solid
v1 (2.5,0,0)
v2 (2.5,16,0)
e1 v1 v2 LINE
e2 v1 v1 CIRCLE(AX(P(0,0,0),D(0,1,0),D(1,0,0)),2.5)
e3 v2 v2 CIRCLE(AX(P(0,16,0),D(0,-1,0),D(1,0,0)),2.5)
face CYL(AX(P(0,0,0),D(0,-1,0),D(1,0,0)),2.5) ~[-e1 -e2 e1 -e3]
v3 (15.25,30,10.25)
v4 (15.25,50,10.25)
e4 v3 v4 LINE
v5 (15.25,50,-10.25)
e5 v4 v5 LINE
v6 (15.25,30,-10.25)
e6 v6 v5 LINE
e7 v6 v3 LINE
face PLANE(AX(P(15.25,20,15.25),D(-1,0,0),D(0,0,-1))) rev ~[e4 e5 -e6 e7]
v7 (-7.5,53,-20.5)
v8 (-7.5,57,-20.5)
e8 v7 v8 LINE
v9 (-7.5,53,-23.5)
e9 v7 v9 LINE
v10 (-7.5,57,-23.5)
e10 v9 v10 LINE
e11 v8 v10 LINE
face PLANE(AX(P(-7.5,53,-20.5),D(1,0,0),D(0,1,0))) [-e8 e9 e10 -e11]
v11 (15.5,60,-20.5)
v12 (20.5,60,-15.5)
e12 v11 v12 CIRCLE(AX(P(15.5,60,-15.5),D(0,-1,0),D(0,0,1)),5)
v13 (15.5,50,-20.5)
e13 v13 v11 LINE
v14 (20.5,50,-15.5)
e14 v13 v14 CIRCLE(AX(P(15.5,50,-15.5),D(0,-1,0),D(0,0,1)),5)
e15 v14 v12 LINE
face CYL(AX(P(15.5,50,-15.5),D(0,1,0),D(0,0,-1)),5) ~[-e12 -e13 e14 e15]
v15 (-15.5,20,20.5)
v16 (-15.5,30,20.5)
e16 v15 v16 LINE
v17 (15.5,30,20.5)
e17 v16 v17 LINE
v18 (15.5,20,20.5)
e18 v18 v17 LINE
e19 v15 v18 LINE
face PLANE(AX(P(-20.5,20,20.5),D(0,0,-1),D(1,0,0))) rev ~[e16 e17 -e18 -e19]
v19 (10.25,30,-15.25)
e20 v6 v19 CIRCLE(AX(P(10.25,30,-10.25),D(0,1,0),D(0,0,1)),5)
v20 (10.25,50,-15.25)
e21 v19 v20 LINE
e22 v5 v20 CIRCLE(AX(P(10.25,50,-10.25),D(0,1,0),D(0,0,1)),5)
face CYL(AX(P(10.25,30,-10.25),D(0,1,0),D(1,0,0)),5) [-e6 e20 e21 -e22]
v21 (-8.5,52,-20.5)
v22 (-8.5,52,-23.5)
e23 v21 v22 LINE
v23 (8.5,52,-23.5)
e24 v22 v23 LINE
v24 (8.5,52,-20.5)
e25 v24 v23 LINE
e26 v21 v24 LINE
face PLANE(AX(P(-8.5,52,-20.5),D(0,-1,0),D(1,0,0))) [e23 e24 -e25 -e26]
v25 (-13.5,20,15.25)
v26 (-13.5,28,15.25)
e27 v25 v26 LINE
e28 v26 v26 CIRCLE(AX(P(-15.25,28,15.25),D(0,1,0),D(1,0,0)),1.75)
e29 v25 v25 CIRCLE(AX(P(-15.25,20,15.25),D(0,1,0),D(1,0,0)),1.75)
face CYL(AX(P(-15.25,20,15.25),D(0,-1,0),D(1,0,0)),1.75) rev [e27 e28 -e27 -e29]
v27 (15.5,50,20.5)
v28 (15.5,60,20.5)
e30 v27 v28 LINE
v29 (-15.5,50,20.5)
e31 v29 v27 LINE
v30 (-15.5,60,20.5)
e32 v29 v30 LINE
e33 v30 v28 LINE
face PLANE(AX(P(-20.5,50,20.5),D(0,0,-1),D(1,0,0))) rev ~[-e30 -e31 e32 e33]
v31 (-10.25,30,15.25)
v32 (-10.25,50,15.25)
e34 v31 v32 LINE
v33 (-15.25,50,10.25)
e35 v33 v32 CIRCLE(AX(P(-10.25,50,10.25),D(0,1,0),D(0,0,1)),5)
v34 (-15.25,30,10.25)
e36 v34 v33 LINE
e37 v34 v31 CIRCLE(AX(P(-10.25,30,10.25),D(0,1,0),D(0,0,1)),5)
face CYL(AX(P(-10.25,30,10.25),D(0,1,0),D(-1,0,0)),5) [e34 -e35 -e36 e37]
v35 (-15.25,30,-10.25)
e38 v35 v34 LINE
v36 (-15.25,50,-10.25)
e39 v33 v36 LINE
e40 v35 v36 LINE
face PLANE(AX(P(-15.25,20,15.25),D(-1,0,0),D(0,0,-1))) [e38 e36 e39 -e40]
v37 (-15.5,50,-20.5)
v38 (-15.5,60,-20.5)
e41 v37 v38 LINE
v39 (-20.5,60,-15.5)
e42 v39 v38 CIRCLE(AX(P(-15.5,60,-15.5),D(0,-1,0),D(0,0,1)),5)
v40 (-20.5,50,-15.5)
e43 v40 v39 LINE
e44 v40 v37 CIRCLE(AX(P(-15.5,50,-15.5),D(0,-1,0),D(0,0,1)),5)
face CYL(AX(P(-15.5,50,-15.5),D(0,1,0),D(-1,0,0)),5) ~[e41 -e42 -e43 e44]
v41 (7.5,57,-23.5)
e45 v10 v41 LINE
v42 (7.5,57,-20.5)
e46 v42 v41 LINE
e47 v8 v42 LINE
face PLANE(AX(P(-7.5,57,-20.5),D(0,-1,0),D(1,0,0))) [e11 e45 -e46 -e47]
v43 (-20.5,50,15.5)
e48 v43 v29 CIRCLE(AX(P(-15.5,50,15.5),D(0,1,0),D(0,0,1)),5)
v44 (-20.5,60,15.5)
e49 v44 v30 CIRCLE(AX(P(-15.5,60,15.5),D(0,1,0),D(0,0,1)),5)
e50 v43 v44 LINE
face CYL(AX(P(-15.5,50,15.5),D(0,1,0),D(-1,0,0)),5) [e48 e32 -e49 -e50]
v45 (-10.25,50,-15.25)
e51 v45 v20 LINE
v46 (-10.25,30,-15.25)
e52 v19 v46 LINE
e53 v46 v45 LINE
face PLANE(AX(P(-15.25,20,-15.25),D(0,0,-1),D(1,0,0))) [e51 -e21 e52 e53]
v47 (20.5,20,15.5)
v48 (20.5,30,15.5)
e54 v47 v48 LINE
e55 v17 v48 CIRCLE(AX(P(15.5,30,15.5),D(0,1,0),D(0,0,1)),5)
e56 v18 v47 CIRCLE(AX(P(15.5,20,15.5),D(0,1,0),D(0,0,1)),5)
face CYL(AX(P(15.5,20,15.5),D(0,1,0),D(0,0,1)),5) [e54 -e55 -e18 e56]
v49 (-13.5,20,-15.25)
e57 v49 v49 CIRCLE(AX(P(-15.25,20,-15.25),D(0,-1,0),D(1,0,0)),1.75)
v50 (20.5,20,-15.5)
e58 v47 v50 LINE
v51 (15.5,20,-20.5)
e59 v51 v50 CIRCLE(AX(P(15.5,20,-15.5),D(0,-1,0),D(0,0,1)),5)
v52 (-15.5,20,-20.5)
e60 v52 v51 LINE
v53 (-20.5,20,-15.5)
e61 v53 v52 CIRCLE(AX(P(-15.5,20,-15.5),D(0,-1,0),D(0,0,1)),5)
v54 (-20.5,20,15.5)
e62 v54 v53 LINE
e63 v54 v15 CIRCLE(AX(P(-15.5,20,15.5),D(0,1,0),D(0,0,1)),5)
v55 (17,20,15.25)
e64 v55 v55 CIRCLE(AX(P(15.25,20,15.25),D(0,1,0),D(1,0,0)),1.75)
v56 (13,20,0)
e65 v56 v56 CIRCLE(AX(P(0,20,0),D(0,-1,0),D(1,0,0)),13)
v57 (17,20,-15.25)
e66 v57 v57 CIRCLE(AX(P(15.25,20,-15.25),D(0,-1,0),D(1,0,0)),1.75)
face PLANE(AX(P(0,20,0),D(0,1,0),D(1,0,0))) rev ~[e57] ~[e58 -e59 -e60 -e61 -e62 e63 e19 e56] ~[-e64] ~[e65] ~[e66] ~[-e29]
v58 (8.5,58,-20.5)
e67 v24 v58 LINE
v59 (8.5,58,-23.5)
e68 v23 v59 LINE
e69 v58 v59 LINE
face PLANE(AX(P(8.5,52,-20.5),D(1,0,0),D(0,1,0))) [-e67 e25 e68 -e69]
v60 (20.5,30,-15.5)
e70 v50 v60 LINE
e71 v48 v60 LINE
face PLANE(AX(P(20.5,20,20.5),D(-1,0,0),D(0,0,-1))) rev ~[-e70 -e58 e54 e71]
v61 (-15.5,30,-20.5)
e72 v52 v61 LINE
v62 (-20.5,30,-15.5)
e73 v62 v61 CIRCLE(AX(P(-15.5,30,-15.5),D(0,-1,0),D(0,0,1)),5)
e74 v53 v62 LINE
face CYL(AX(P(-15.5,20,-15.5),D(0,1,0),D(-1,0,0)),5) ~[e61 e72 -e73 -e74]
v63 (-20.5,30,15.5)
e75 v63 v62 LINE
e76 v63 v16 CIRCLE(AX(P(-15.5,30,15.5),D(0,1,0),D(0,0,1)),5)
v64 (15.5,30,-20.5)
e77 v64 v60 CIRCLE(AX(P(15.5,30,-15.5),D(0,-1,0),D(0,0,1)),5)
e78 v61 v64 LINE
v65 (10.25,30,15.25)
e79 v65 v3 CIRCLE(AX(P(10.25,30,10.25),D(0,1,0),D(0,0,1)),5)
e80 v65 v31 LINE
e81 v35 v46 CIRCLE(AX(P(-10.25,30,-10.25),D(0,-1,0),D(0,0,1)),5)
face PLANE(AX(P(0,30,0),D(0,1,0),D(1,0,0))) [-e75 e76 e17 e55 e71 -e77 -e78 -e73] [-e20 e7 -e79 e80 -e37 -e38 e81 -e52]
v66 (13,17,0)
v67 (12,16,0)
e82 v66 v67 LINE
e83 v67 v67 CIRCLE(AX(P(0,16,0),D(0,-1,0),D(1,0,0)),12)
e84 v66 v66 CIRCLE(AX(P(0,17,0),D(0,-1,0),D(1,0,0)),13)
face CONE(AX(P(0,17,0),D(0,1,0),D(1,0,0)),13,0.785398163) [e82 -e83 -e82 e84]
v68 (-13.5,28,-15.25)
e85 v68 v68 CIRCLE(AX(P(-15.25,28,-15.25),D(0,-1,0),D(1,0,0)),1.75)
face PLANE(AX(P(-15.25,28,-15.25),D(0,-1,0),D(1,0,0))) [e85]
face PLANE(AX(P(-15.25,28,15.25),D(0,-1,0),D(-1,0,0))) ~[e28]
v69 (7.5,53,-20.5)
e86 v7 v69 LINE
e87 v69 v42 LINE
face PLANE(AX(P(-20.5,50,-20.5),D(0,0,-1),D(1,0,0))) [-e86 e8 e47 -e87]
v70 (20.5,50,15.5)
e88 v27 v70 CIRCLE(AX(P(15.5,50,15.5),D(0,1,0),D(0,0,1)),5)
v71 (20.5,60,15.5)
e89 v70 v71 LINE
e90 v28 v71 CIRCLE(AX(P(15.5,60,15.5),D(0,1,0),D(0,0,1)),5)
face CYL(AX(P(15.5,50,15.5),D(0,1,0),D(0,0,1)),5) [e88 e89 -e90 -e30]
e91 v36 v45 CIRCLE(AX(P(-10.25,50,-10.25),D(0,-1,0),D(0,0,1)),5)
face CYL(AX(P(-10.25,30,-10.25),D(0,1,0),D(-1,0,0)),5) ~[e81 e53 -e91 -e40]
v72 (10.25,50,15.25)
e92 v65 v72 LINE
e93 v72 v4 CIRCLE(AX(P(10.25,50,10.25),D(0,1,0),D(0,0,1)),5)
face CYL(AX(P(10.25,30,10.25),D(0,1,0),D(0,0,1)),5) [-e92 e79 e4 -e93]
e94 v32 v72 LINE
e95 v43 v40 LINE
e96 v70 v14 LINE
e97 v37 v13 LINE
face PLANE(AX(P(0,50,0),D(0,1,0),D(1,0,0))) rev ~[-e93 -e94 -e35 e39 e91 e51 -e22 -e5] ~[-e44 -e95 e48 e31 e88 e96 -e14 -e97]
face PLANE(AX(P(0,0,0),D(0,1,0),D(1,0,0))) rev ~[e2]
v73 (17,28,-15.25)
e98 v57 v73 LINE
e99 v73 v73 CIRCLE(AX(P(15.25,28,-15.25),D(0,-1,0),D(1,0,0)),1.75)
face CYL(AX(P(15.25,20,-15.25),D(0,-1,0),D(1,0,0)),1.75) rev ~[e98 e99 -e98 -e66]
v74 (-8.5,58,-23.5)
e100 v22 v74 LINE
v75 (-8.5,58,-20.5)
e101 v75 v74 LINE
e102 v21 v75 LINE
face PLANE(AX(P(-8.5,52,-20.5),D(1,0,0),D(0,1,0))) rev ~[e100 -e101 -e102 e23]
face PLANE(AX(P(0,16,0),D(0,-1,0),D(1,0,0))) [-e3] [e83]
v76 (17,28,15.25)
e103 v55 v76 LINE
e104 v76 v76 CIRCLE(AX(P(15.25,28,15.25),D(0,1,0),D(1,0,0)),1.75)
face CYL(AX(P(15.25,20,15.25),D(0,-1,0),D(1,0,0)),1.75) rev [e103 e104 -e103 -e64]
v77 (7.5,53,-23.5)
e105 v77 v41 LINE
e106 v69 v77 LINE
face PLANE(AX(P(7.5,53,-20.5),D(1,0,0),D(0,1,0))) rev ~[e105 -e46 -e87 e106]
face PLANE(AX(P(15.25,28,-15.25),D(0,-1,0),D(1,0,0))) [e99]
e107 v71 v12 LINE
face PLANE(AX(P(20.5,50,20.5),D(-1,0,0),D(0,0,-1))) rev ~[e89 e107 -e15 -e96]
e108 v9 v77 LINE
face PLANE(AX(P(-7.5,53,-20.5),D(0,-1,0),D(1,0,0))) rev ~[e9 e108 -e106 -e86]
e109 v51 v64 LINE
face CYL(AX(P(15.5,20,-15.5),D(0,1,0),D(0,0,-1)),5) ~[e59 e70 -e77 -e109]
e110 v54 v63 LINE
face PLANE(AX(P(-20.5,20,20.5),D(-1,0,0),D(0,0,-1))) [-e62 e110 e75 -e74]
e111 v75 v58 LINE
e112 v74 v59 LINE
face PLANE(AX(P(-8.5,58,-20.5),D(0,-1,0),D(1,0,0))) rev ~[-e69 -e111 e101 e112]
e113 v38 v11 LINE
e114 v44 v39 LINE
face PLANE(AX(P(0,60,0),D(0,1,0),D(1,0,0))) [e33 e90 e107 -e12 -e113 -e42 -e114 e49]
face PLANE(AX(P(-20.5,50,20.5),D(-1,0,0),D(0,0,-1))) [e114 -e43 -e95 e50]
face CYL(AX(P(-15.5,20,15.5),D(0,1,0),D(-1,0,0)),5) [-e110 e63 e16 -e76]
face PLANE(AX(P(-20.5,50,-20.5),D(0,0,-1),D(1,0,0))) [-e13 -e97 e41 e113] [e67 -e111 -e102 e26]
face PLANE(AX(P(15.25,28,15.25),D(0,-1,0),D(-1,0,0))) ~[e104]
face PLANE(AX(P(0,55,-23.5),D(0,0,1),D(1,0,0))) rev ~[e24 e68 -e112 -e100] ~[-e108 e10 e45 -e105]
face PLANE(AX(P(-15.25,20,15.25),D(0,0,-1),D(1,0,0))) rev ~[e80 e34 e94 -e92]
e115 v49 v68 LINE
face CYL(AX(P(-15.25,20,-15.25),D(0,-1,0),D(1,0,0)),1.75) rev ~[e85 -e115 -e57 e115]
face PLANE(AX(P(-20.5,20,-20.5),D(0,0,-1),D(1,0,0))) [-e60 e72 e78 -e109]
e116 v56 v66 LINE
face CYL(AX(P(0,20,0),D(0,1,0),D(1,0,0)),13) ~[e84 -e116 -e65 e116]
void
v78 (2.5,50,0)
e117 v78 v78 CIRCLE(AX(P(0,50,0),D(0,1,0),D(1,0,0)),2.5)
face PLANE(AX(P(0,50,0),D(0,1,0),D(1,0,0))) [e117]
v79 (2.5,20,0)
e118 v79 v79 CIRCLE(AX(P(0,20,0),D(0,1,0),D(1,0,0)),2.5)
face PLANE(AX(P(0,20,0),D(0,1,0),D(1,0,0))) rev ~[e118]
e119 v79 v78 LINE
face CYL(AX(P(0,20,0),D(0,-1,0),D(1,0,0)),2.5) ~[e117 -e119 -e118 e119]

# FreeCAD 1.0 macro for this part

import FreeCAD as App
import Part
import Sketcher


def edges_at(feature, points):
    """Names of the edges that pass closest to the given points."""
    edges = feature.Shape.Edges
    near = lambda p: min(range(len(edges)), key=lambda i: edges[i].distToShape(Part.Vertex(*p))[0])
    return sorted({f"Edge{near(p) + 1}" for p in points})


def add_polygon(sketch, points):
    """Adds a closed chain of lines whose ends are joined by coincident constraints."""
    first, n = sketch.GeometryCount, len(points)
    for a, b in zip(points, points[1:] + points[:1]):
        sketch.addGeometry(Part.LineSegment(App.Vector(*a, 0), App.Vector(*b, 0)), False)
    for i in range(n):
        sketch.addConstraint(Sketcher.Constraint("Coincident", first + i, 2, first + (i + 1) % n, 1))

doc = App.newDocument("Part")
body = doc.addObject("PartDesign::Body", "Body")

# Sketch on XZ plane
sketch1 = body.newObject("Sketcher::SketchObject", "Sketch")
sketch1.AttachmentSupport = (doc.getObject("XZ_Plane"), [""])
sketch1.MapMode = "FlatFace"
sketch1.addGeometry(Part.Circle(App.Vector(0, 0, 0), App.Vector(0, 0, 1), 2.5), False)
sketch1.addConstraint(Sketcher.Constraint("Coincident", 0, 3, -1, 1))
sketch1.addConstraint(Sketcher.Constraint("Diameter", 0, 5.0))
pad1 = body.newObject("PartDesign::Pad", "Pad")
pad1.Profile = sketch1
pad1.Length = 20
pad1.Reversed = True
body2 = doc.addObject("PartDesign::Body", "Body001")

# Sketch on XZ plane
sketch2 = body2.newObject("Sketcher::SketchObject", "Sketch001")
sketch2.AttachmentSupport = (doc.getObject("XZ_Plane001"), [""])
sketch2.MapMode = "FlatFace"
sketch2.AttachmentOffset = App.Placement(App.Vector(0, 0, -20), App.Rotation())
add_polygon(sketch2, [(-20.5, -20.5), (-20.5, 20.5), (20.5, 20.5), (20.5, -20.5)])  # lines 0-3
sketch2.addGeometry(Part.Circle(App.Vector(0, 0, 0), App.Vector(0, 0, 1), 2.5), False)  # 4
sketch2.addConstraint(Sketcher.Constraint("Vertical", 0))
sketch2.addConstraint(Sketcher.Constraint("Horizontal", 1))
sketch2.addConstraint(Sketcher.Constraint("Vertical", 2))
sketch2.addConstraint(Sketcher.Constraint("Horizontal", 3))
sketch2.addConstraint(Sketcher.Constraint("Coincident", 4, 3, -1, 1))
sketch2.addConstraint(Sketcher.Constraint("Symmetric", 0, 2, 2, 2, -1, 1))
sketch2.addConstraint(Sketcher.Constraint("Equal", 3, 0))
sketch2.addConstraint(Sketcher.Constraint("Diameter", 4, 5.0))
sketch2.addConstraint(Sketcher.Constraint("DistanceX", 1, 1, 1, 2, 41.0))
pad2 = body2.newObject("PartDesign::Pad", "Pad001")
pad2.Profile = sketch2
pad2.Length = 10
pad2.Reversed = True

# Sketch on XZ plane
sketch3 = body2.newObject("Sketcher::SketchObject", "Sketch002")
sketch3.AttachmentSupport = (doc.getObject("XZ_Plane001"), [""])
sketch3.MapMode = "FlatFace"
sketch3.AttachmentOffset = App.Placement(App.Vector(0, 0, -20), App.Rotation())
add_polygon(sketch3, [(-15.2, -15.2), (-15.2, 15.2), (15.2, 15.2), (15.2, -15.2)])  # lines 0-3
sketch3.addGeometry(Part.Circle(App.Vector(0, 0, 0), App.Vector(0, 0, 1), 2.5), False)  # 4
sketch3.addConstraint(Sketcher.Constraint("Vertical", 0))
sketch3.addConstraint(Sketcher.Constraint("Horizontal", 1))
sketch3.addConstraint(Sketcher.Constraint("Vertical", 2))
sketch3.addConstraint(Sketcher.Constraint("Horizontal", 3))
sketch3.addConstraint(Sketcher.Constraint("Coincident", 4, 3, -1, 1))
sketch3.addConstraint(Sketcher.Constraint("Symmetric", 0, 2, 2, 2, -1, 1))
sketch3.addConstraint(Sketcher.Constraint("Equal", 3, 0))
sketch3.addConstraint(Sketcher.Constraint("Diameter", 4, 5.0))
sketch3.addConstraint(Sketcher.Constraint("DistanceX", 1, 1, 1, 2, 30.5))
pad3 = body2.newObject("PartDesign::Pad", "Pad002")
pad3.Profile = sketch3
pad3.Length = 30
pad3.Reversed = True

# Sketch on XZ plane
sketch4 = body2.newObject("Sketcher::SketchObject", "Sketch003")
sketch4.AttachmentSupport = (doc.getObject("XZ_Plane001"), [""])
sketch4.MapMode = "FlatFace"
sketch4.AttachmentOffset = App.Placement(App.Vector(0, 0, -50), App.Rotation())
add_polygon(sketch4, [(-20, -20), (-20, 20), (20, 20), (20, -20)])  # lines 0-3
sketch4.addConstraint(Sketcher.Constraint("Vertical", 0))
sketch4.addConstraint(Sketcher.Constraint("Horizontal", 1))
sketch4.addConstraint(Sketcher.Constraint("Vertical", 2))
sketch4.addConstraint(Sketcher.Constraint("Horizontal", 3))
sketch4.addConstraint(Sketcher.Constraint("Symmetric", 0, 2, 2, 2, -1, 1))
sketch4.addConstraint(Sketcher.Constraint("Equal", 3, 0))
sketch4.addConstraint(Sketcher.Constraint("DistanceX", 1, 1, 1, 2, 41.0))
pad4 = body2.newObject("PartDesign::Pad", "Pad003")
pad4.Profile = sketch4
pad4.Length = 10
pad4.Reversed = True
doc.recompute()

fillet = body2.newObject("PartDesign::Fillet", "Fillet")
fillet.Base = (pad4, edges_at(pad4, [
    (-20.5, 25, -20.5),
    (20.5, 25, -20.5),
    (20.5, 25, 20.5),
    (-20.5, 25, 20.5),
    (-15.25, 40, -15.25),
    (-15.25, 40, 15.25),
    (15.25, 40, 15.25),
    (15.25, 40, -15.25),
    (20.5, 55, 20.5),
    (20.5, 55, -20.5),
    (-20.5, 55, -20.5),
    (-20.5, 55, 20.5),
]))
fillet.Radius = 5

# Sketch on XZ plane
sketch5 = body2.newObject("Sketcher::SketchObject", "Sketch004")
sketch5.AttachmentSupport = (doc.getObject("XZ_Plane001"), [""])
sketch5.MapMode = "FlatFace"
sketch5.AttachmentOffset = App.Placement(App.Vector(0, 0, -20), App.Rotation())
sketch5.addGeometry(Part.Circle(App.Vector(15.2, -15.2, 0), App.Vector(0, 0, 1), 1.8), False)
sketch5.addGeometry(Part.Circle(App.Vector(-15.2, -15.2, 0), App.Vector(0, 0, 1), 1.8), False)
sketch5.addConstraint(Sketcher.Constraint("Equal", 0, 1))
sketch5.addConstraint(Sketcher.Constraint("Symmetric", 0, 3, 1, 3, -2))
sketch5.addConstraint(Sketcher.Constraint("Diameter", 0, 3.5))
sketch5.addConstraint(Sketcher.Constraint("DistanceX", 1, 3, 0, 3, 30.5))
sketch5.addConstraint(Sketcher.Constraint("DistanceY", 0, 3, -1, 1, 15.25))
pocket1 = body2.newObject("PartDesign::Pocket", "Pocket")
pocket1.Profile = sketch5
pocket1.Length = 8
doc.recompute()

mirrored = body2.newObject("PartDesign::Mirrored", "Mirrored")
mirrored.Originals = [pocket1]
mirrored.MirrorPlane = (doc.getObject("XY_Plane001"), [""])
body2.Tip = mirrored
body.AllowCompound = True
doc.recompute()

boolean = body.newObject("PartDesign::Boolean", "Boolean")
boolean.Type = "Fuse"
boolean.addObjects([body2])

# Sketch on XZ plane
sketch6 = body.newObject("Sketcher::SketchObject", "Sketch005")
sketch6.AttachmentSupport = (doc.getObject("XZ_Plane"), [""])
sketch6.MapMode = "FlatFace"
sketch6.AttachmentOffset = App.Placement(App.Vector(0, 0, -20), App.Rotation())
sketch6.addGeometry(Part.Circle(App.Vector(0, 0, 0), App.Vector(0, 0, 1), 13), False)
sketch6.addConstraint(Sketcher.Constraint("Coincident", 0, 3, -1, 1))
sketch6.addConstraint(Sketcher.Constraint("Diameter", 0, 26.0))
pad5 = body.newObject("PartDesign::Pad", "Pad004")
pad5.Profile = sketch6
pad5.Length = 4
doc.recompute()

chamfer = body.newObject("PartDesign::Chamfer", "Chamfer")
chamfer.Base = (pad5, edges_at(pad5, [(-13, 16, 0)]))
chamfer.Size = 1

# Sketch on XY plane
sketch7 = body.newObject("Sketcher::SketchObject", "Sketch006")
sketch7.AttachmentSupport = (doc.getObject("XY_Plane"), [""])
sketch7.MapMode = "FlatFace"
sketch7.AttachmentOffset = App.Placement(App.Vector(0, 0, -20.5), App.Rotation())
add_polygon(sketch7, [(-8.5, 58), (-8.5, 52), (8.5, 52), (8.5, 58)])  # lines 0-3
add_polygon(sketch7, [(7.5, 53), (-7.5, 53), (-7.5, 57), (7.5, 57)])  # lines 4-7
sketch7.addConstraint(Sketcher.Constraint("Vertical", 0))
sketch7.addConstraint(Sketcher.Constraint("Horizontal", 1))
sketch7.addConstraint(Sketcher.Constraint("Vertical", 2))
sketch7.addConstraint(Sketcher.Constraint("Horizontal", 3))
sketch7.addConstraint(Sketcher.Constraint("Horizontal", 4))
sketch7.addConstraint(Sketcher.Constraint("Vertical", 5))
sketch7.addConstraint(Sketcher.Constraint("Horizontal", 6))
sketch7.addConstraint(Sketcher.Constraint("Vertical", 7))
sketch7.addConstraint(Sketcher.Constraint("DistanceX", 1, 1, 1, 2, 17.0))
sketch7.addConstraint(Sketcher.Constraint("DistanceX", 4, 2, 4, 1, 15.0))
sketch7.addConstraint(Sketcher.Constraint("DistanceY", 0, 2, 0, 1, 6.0))
sketch7.addConstraint(Sketcher.Constraint("DistanceY", 5, 1, 5, 2, 4.0))
sketch7.addConstraint(Sketcher.Constraint("DistanceY", -1, 1, 0, 2, 52.0))
sketch7.addConstraint(Sketcher.Constraint("DistanceY", -1, 1, 4, 2, 53.0))
sketch7.addConstraint(Sketcher.Constraint("DistanceX", 0, 2, 4, 2, 1.0))
sketch7.addConstraint(Sketcher.Constraint("DistanceX", 0, 2, -1, 1, 8.5))
pad6 = body.newObject("PartDesign::Pad", "Pad005")
pad6.Profile = sketch7
pad6.Length = 3
pad6.Reversed = True

doc.recompute()
